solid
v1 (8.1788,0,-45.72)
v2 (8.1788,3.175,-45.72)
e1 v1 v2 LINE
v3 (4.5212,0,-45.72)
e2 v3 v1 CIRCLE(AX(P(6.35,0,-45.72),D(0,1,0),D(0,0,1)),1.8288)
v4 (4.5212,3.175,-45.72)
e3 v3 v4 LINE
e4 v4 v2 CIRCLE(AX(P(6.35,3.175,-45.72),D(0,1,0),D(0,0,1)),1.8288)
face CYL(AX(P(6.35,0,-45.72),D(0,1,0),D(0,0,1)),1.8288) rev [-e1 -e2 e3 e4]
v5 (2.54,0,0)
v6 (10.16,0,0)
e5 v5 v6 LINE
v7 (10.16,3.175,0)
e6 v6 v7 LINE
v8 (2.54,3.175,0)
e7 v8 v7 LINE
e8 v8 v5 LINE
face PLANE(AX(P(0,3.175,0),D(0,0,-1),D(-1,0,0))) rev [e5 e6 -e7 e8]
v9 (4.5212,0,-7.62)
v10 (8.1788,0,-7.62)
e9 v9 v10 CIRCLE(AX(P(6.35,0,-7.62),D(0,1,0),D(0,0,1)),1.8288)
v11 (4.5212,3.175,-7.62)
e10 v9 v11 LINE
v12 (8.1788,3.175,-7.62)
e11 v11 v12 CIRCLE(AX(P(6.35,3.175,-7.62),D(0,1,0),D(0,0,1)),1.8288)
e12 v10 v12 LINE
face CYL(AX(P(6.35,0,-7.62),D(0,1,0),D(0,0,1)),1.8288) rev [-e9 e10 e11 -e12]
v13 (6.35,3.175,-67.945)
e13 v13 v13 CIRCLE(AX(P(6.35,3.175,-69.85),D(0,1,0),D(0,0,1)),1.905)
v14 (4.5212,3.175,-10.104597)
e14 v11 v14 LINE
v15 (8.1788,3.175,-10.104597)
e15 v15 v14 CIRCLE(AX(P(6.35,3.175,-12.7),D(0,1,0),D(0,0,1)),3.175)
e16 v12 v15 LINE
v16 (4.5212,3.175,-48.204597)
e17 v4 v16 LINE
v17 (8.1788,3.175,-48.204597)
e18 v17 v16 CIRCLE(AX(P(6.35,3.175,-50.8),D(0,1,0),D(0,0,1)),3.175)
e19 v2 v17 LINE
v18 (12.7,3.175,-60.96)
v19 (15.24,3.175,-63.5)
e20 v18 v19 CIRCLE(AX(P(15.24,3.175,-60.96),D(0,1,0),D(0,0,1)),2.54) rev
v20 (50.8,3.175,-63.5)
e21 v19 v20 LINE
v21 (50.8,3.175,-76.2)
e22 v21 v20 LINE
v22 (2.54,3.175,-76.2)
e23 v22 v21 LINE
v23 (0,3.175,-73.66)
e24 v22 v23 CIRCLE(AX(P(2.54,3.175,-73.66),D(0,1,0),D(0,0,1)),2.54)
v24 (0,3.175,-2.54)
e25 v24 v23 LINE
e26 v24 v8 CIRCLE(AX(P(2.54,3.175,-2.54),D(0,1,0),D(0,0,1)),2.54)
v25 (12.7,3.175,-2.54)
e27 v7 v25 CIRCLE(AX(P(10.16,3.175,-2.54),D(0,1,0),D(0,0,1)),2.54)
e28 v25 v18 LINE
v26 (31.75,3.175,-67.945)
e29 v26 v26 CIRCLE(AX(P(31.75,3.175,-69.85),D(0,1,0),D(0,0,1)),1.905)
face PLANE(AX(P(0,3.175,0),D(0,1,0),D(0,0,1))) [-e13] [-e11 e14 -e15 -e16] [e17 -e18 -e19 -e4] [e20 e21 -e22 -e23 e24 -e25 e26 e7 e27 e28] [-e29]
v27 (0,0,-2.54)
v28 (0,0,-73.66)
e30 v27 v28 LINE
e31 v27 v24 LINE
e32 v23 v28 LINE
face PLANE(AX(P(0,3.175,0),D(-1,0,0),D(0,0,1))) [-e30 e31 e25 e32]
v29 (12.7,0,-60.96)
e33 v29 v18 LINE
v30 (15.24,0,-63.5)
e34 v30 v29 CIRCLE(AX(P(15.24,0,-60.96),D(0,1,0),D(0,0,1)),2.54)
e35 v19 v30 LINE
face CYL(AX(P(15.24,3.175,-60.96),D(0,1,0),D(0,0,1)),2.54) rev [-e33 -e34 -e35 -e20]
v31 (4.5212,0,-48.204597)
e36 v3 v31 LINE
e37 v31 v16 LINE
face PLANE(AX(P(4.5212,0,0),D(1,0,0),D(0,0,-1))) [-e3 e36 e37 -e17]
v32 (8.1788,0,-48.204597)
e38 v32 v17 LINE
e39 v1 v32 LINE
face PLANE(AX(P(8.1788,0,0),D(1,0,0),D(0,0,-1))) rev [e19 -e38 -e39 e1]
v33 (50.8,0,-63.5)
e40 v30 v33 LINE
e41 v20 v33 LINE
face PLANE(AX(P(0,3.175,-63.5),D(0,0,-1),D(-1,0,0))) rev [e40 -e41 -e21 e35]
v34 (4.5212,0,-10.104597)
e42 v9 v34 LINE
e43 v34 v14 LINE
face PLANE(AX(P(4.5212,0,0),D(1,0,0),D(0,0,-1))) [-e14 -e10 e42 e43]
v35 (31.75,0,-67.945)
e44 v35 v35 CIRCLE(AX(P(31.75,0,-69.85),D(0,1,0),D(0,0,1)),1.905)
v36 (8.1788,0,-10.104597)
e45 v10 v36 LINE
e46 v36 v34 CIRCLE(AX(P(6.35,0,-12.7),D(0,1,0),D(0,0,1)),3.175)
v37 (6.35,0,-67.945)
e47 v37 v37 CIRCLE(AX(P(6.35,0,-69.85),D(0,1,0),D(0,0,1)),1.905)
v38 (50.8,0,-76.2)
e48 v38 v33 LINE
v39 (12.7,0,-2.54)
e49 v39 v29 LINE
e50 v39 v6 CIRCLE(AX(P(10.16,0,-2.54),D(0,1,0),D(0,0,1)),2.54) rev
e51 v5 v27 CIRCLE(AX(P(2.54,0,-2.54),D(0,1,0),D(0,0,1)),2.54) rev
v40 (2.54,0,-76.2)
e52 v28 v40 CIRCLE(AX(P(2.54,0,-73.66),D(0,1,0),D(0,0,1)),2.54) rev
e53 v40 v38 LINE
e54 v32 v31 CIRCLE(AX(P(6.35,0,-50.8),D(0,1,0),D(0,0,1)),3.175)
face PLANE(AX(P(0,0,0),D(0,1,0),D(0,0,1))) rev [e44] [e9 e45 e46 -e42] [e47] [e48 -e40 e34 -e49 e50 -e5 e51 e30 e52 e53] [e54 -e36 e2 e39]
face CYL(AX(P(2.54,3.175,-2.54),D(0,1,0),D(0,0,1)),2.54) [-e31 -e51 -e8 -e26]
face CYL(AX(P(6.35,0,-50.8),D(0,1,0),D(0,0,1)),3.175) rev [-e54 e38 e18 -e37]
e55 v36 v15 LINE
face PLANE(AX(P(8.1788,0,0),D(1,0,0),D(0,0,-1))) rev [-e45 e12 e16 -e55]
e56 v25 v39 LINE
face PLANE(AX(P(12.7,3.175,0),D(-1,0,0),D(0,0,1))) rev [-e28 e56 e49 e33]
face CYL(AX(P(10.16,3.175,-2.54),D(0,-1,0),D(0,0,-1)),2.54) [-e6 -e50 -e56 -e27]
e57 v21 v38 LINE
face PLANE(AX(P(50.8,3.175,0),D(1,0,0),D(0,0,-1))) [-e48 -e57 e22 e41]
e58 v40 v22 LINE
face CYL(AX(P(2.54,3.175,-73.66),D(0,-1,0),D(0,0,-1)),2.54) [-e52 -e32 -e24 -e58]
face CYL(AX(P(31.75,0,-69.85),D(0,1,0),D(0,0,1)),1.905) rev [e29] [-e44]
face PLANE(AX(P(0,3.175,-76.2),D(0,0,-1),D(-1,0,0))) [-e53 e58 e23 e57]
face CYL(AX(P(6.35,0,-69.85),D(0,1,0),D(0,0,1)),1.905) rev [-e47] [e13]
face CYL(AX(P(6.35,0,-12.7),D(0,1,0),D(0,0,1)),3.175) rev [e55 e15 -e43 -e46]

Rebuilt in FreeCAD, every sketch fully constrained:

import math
import FreeCAD as App
import Part
import Sketcher
from FreeCAD import Vector
Q = App.Units.Quantity


def edges_at(feature, points):
    """Names of the edges that pass closest to the given points."""
    edges = feature.Shape.Edges
    near = lambda p: min(range(len(edges)), key=lambda i: edges[i].distToShape(Part.Vertex(*p))[0])
    return sorted({f"Edge{near(p) + 1}" for p in points})

doc = App.newDocument("Part")
params = doc.addObject("Spreadsheet::Sheet", "Params")
for row, (alias, value) in enumerate([
    ("sketch1_width", "2 in"),
    ("sketch1_height", "3 in"),
    ("sketch1_width2", "0.5 in"),
    ("pad1_length", "0.125 in"),
    ("sketch2_diameter", "0.15 in"),
    ("sketch2_radius", "0.072 in"),
    ("sketch2_radius2", "0.125 in"),
    ("pocket1_length", "0.125 in"),
    ("fillet_radius", "0.1 in"),
], start=1):
    params.set(f"A{row}", alias)
    params.set(f"B{row}", "=" + value)
    params.setAlias(f"B{row}", alias)

body = doc.addObject("PartDesign::Body", "Body")

# Sketch on XZ plane
sketch1 = body.newObject("Sketcher::SketchObject", "Sketch")
sketch1.AttachmentSupport = (doc.getObject("XZ_Plane"), [""])
sketch1.MapMode = "FlatFace"
sketch1.addGeometry(Part.LineSegment(Vector(0, -76, 0), Vector(0, 0, 0)), False)
sketch1.addGeometry(Part.LineSegment(Vector(0, 0, 0), Vector(13, 0, 0)), False)
sketch1.addGeometry(Part.LineSegment(Vector(13, 0, 0), Vector(13, -64, 0)), False)
sketch1.addGeometry(Part.LineSegment(Vector(13, -64, 0), Vector(51, -64, 0)), False)
sketch1.addGeometry(Part.LineSegment(Vector(51, -64, 0), Vector(51, -76, 0)), False)
sketch1.addGeometry(Part.LineSegment(Vector(51, -76, 0), Vector(0, -76, 0)), False)
sketch1.addConstraint(Sketcher.Constraint("Coincident", 0, 2, 1, 1))
sketch1.addConstraint(Sketcher.Constraint("Coincident", 1, 2, 2, 1))
sketch1.addConstraint(Sketcher.Constraint("Coincident", 2, 2, 3, 1))
sketch1.addConstraint(Sketcher.Constraint("Coincident", 3, 2, 4, 1))
sketch1.addConstraint(Sketcher.Constraint("Coincident", 4, 2, 5, 1))
sketch1.addConstraint(Sketcher.Constraint("Coincident", 5, 2, 0, 1))
sketch1.addConstraint(Sketcher.Constraint("Vertical", 0))
sketch1.addConstraint(Sketcher.Constraint("Horizontal", 1))
sketch1.addConstraint(Sketcher.Constraint("Vertical", 2))
sketch1.addConstraint(Sketcher.Constraint("Horizontal", 3))
sketch1.addConstraint(Sketcher.Constraint("Vertical", 4))
sketch1.addConstraint(Sketcher.Constraint("Horizontal", 5))
sketch1.addConstraint(Sketcher.Constraint("Coincident", 0, 2, -1, 1))
sketch1.addConstraint(Sketcher.Constraint("Equal", 1, 4))
sketch1.addConstraint(Sketcher.Constraint("DistanceX", 5, 2, 5, 1, Q("2 in")))
sketch1.addConstraint(Sketcher.Constraint("DistanceY", 0, 1, 0, 2, Q("3 in")))
sketch1.addConstraint(Sketcher.Constraint("DistanceX", 1, 1, 1, 2, Q("0.5 in")))
sketch1.setExpression("Constraints[14]", "Params.sketch1_width")
sketch1.setExpression("Constraints[15]", "Params.sketch1_height")
sketch1.setExpression("Constraints[16]", "Params.sketch1_width2")
pad1 = body.newObject("PartDesign::Pad", "Pad")
pad1.Profile = sketch1
pad1.setExpression("Length", "Params.pad1_length")
pad1.Reversed = True

# Sketch on XZ plane
sketch2 = body.newObject("Sketcher::SketchObject", "Sketch001")
sketch2.AttachmentSupport = (doc.getObject("XZ_Plane"), [""])
sketch2.MapMode = "FlatFace"
sketch2.AttachmentOffset = App.Placement(Vector(0, 0, -0.125 * 25.4), App.Rotation())
sketch2.addGeometry(Part.LineSegment(Vector(4.5, -48.2, 0), Vector(4.5, -45.7, 0)), False)
sketch2.addGeometry(Part.ArcOfCircle(Part.Circle(Vector(6.3, -45.7, 0), Vector(0, 0, 1), 1.8), math.radians(0), math.radians(180)), False)
sketch2.addGeometry(Part.LineSegment(Vector(8.2, -45.7, 0), Vector(8.2, -48.2, 0)), False)
sketch2.addGeometry(Part.ArcOfCircle(Part.Circle(Vector(6.3, -50.8, 0), Vector(0, 0, 1), 3.2), math.radians(125), math.radians(415)), False)
sketch2.addGeometry(Part.LineSegment(Vector(4.5, -10.1, 0), Vector(4.5, -7.6, 0)), False)
sketch2.addGeometry(Part.ArcOfCircle(Part.Circle(Vector(6.3, -7.6, 0), Vector(0, 0, 1), 1.8), math.radians(0), math.radians(180)), False)
sketch2.addGeometry(Part.LineSegment(Vector(8.2, -7.6, 0), Vector(8.2, -10.1, 0)), False)
sketch2.addGeometry(Part.ArcOfCircle(Part.Circle(Vector(6.3, -12.7, 0), Vector(0, 0, 1), 3.2), math.radians(125), math.radians(415)), False)
sketch2.addGeometry(Part.Circle(Vector(31.8, -69.8, 0), Vector(0, 0, 1), 1.9), False)
sketch2.addGeometry(Part.Circle(Vector(6.3, -69.8, 0), Vector(0, 0, 1), 1.9), False)
sketch2.addConstraint(Sketcher.Constraint("Tangent", 0, 2, 1, 2))
sketch2.addConstraint(Sketcher.Constraint("Tangent", 1, 1, 2, 1))
sketch2.addConstraint(Sketcher.Constraint("Coincident", 2, 2, 3, 2))
sketch2.addConstraint(Sketcher.Constraint("Coincident", 3, 1, 0, 1))
sketch2.addConstraint(Sketcher.Constraint("Tangent", 4, 2, 5, 2))
sketch2.addConstraint(Sketcher.Constraint("Tangent", 5, 1, 6, 1))
sketch2.addConstraint(Sketcher.Constraint("Coincident", 6, 2, 7, 2))
sketch2.addConstraint(Sketcher.Constraint("Coincident", 7, 1, 4, 1))
sketch2.addConstraint(Sketcher.Constraint("Vertical", 0))
sketch2.addConstraint(Sketcher.Constraint("Vertical", 2))
sketch2.addConstraint(Sketcher.Constraint("Vertical", 4))
sketch2.addConstraint(Sketcher.Constraint("Vertical", 6))
sketch2.addConstraint(Sketcher.Constraint("Equal", 1, 5))
sketch2.addConstraint(Sketcher.Constraint("Equal", 3, 7))
sketch2.addConstraint(Sketcher.Constraint("Equal", 8, 9))
sketch2.addConstraint(Sketcher.Constraint("Horizontal", 8, 3, 9, 3))
sketch2.addConstraint(Sketcher.Constraint("Horizontal", 2, 2, 3, 1))
sketch2.addConstraint(Sketcher.Constraint("Horizontal", 6, 2, 7, 1))
sketch2.addConstraint(Sketcher.Constraint("Vertical", 3, 3, 5, 3))
sketch2.addConstraint(Sketcher.Constraint("Vertical", 7, 3, 9, 3))
sketch2.addConstraint(Sketcher.Constraint("Equal", 2, 4))
sketch2.addConstraint(Sketcher.Constraint("Diameter", 8, Q("0.15 in")))
sketch2.addConstraint(Sketcher.Constraint("DistanceY", 3, 3, -1, 1, Q("2 in")))
sketch2.addConstraint(Sketcher.Constraint("Radius", 1, Q("0.072 in")))
sketch2.addConstraint(Sketcher.Constraint("Radius", 3, Q("0.125 in")))
sketch2.addConstraint(Sketcher.Constraint("DistanceX", 3, 3, 8, 3, Q("1 in")))
sketch2.addConstraint(Sketcher.Constraint("DistanceY", 1, 3, -1, 1, Q("1.8 in")))
sketch2.addConstraint(Sketcher.Constraint("DistanceY", 5, 3, -1, 1, Q("0.3 in")))
sketch2.addConstraint(Sketcher.Constraint("DistanceX", -1, 1, 1, 3, Q("0.25 in")))
sketch2.addConstraint(Sketcher.Constraint("DistanceY", 8, 3, -1, 1, Q("2.75 in")))
sketch2.setExpression("Constraints[21]", "Params.sketch2_diameter")
sketch2.setExpression("Constraints[23]", "Params.sketch2_radius")
sketch2.setExpression("Constraints[24]", "Params.sketch2_radius2")
pocket1 = body.newObject("PartDesign::Pocket", "Pocket")
pocket1.Profile = sketch2
pocket1.setExpression("Length", "Params.pocket1_length")
pocket1.Reversed = True
doc.recompute()

fillet = body.newObject("PartDesign::Fillet", "Fillet")
fillet.Base = (pocket1, edges_at(pocket1, [
    (12.7, 1.587, -63.5),
    (12.7, 1.587, 0),
    (0, 1.587, 0),
    (0, 1.587, -76.2),
]))
fillet.setExpression("Radius", "Params.fillet_radius")

doc.recompute()
